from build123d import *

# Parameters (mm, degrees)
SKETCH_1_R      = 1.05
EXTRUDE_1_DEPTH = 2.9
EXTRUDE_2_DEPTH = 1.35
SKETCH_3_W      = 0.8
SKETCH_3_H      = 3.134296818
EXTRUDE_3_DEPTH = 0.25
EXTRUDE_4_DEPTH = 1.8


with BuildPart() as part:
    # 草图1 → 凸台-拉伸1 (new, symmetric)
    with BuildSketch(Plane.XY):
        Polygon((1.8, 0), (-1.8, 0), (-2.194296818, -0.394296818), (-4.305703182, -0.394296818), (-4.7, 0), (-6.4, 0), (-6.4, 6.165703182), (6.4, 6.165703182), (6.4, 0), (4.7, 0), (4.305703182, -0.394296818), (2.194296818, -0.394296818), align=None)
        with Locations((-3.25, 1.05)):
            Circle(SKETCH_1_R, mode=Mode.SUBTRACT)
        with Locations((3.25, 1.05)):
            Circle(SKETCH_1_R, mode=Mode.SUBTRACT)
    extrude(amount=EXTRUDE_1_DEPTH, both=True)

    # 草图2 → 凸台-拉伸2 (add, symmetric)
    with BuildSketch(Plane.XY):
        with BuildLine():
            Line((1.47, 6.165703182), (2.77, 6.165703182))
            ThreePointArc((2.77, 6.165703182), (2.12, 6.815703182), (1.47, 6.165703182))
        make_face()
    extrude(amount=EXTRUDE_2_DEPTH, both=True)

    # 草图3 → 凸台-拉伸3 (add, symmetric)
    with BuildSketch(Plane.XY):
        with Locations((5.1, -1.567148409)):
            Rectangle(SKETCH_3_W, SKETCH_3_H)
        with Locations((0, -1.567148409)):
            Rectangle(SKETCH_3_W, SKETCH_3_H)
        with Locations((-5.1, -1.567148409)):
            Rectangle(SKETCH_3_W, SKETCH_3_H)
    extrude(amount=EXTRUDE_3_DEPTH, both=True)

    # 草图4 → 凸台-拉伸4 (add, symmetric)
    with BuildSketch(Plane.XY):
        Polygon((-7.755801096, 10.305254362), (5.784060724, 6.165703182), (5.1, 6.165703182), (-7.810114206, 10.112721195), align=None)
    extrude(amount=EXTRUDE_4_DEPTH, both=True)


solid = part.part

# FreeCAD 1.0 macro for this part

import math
import FreeCAD as App
import Part
import Sketcher
from FreeCAD import Vector
Q = App.Units.Quantity


def add_polygon(sketch, points):
    """Adds a closed chain of lines whose ends are joined by coincident constraints."""
    first, n = sketch.GeometryCount, len(points)
    for a, b in zip(points, points[1:] + points[:1]):
        sketch.addGeometry(Part.LineSegment(App.Vector(*a, 0), App.Vector(*b, 0)), False)
    for i in range(n):
        sketch.addConstraint(Sketcher.Constraint("Coincident", first + i, 2, first + (i + 1) % n, 1))

doc = App.newDocument("Part")
body = doc.addObject("PartDesign::Body", "Body")

sketch1 = doc.addObject("Sketcher::SketchObject", "Sketch")
body.addObject(sketch1)
sketch1.AttachmentSupport = (doc.XY_Plane, [""])
sketch1.MapMode = "FlatFace"
add_polygon(sketch1, [(-1.8, 0), (1.8, 0), (2.2, -0.4), (4.3, -0.4), (4.7, 0), (6.4, 0), (6.4, 6.2), (-6.4, 6.2), (-6.4, 0), (-4.7, 0), (-4.3, -0.4), (-2.2, -0.4)])
sketch1.addGeometry(Part.Circle(Vector(3.2, 1.1, 0), Vector(0, 0, 1), 1.1), False)
sketch1.addGeometry(Part.Circle(Vector(-3.2, 1.1, 0), Vector(0, 0, 1), 1.1), False)
sketch1.addConstraint([
    Sketcher.Constraint("Horizontal", 0),
    Sketcher.Constraint("Horizontal", 2),
    Sketcher.Constraint("Horizontal", 4),
    Sketcher.Constraint("Vertical", 5),
    Sketcher.Constraint("Horizontal", 6),
    Sketcher.Constraint("Vertical", 7),
    Sketcher.Constraint("Horizontal", 8),
    Sketcher.Constraint("Horizontal", 10),
    Sketcher.Constraint("Equal", 12, 13),
    Sketcher.Constraint("Symmetric", 4, 2, 7, 2, -1, 1),
    Sketcher.Constraint("Symmetric", 0, 2, 11, 2, -1, 1),
    Sketcher.Constraint("Symmetric", 12, 3, 13, 3, -2),
    Sketcher.Constraint("Symmetric", 3, 2, 8, 2, -2),
    Sketcher.Constraint("Symmetric", 2, 2, 9, 2, -2),
    Sketcher.Constraint("Perpendicular", 1, 3),
    Sketcher.Constraint("Perpendicular", 3, 9),
    Sketcher.Constraint("Perpendicular", 9, 11),
    Sketcher.Constraint("Diameter", 12, Q("2.1 mm")),
    Sketcher.Constraint("DistanceX", 0, 1, 0, 2, Q("3.6 mm")),
    Sketcher.Constraint("DistanceX", 4, 1, 4, 2, Q("1.7 mm")),
    Sketcher.Constraint("DistanceX", 6, 2, 6, 1, Q("12.8 mm")),
    Sketcher.Constraint("DistanceX", 13, 3, 12, 3, Q("6.5 mm")),
    Sketcher.Constraint("DistanceY", -1, 1, 12, 3, Q("1.05 mm")),
    Sketcher.Constraint("DistanceY", 2, 2, 5, 2, Q("6.56 mm")),
    Sketcher.Constraint("Distance", 1, Q("0.55762 mm")),
])
pad1 = doc.addObject("PartDesign::Pad", "Pad")
body.addObject(pad1)
pad1.Profile = sketch1
pad1.Length = 5.8
pad1.Midplane = True

sketch2 = doc.addObject("Sketcher::SketchObject", "Sketch001")
body.addObject(sketch2)
sketch2.AttachmentSupport = (doc.XY_Plane, [""])
sketch2.MapMode = "FlatFace"
sketch2.addGeometry([
    Part.LineSegment(Vector(1.5, 6.2, 0), Vector(2.8, 6.2, 0)),
    Part.ArcOfCircle(Part.Circle(Vector(2.1, 6.2, 0), Vector(0, 0, 1), 0.7), math.radians(0), math.radians(180)),
], False)
sketch2.addConstraint([
    Sketcher.Constraint("Coincident", 0, 1, 1, 2),
    Sketcher.Constraint("Coincident", 1, 1, 0, 2),
    Sketcher.Constraint("Horizontal", 0),
    Sketcher.Constraint("Horizontal", 1, 3, 0, 1),
    Sketcher.Constraint("Radius", 1, Q("0.65 mm")),
    Sketcher.Constraint("DistanceX", -1, 1, 1, 3, Q("2.12 mm")),
    Sketcher.Constraint("DistanceY", -1, 1, 1, 3, Q("6.165703 mm")),
])
pad2 = doc.addObject("PartDesign::Pad", "Pad001")
body.addObject(pad2)
pad2.Profile = sketch2
pad2.Length = 2.7
pad2.Midplane = True

sketch3 = doc.addObject("Sketcher::SketchObject", "Sketch002")
body.addObject(sketch3)
sketch3.AttachmentSupport = (doc.XY_Plane, [""])
sketch3.MapMode = "FlatFace"
add_polygon(sketch3, [(4.7, 0), (4.7, -3.1), (5.5, -3.1), (5.5, 0)])
add_polygon(sketch3, [(-0.4, 0), (-0.4, -3.1), (0.4, -3.1), (0.4, 0)])
add_polygon(sketch3, [(-5.5, 0), (-5.5, -3.1), (-4.7, -3.1), (-4.7, 0)])
sketch3.addConstraint([
    Sketcher.Constraint("Vertical", 0),
    Sketcher.Constraint("Horizontal", 1),
    Sketcher.Constraint("Vertical", 2),
    Sketcher.Constraint("Horizontal", 3),
    Sketcher.Constraint("Vertical", 4),
    Sketcher.Constraint("Horizontal", 5),
    Sketcher.Constraint("Vertical", 6),
    Sketcher.Constraint("Horizontal", 7),
    Sketcher.Constraint("Vertical", 8),
    Sketcher.Constraint("Horizontal", 9),
    Sketcher.Constraint("Vertical", 10),
    Sketcher.Constraint("Horizontal", 11),
    Sketcher.Constraint("Symmetric", 6, 2, 7, 2, -1, 1),
    Sketcher.Constraint("Symmetric", 3, 2, 10, 2, -1, 1),
    Sketcher.Constraint("Symmetric", 1, 2, 8, 2, -2),
    Sketcher.Constraint("PointOnObject", 2, 2, -1),
    Sketcher.Constraint("Horizontal", 1, 2, 4, 2),
    Sketcher.Constraint("Equal", 3, 5),
    Sketcher.Constraint("DistanceX", 1, 1, 1, 2, Q("0.8 mm")),
    Sketcher.Constraint("DistanceX", -1, 1, 0, 2, Q("4.7 mm")),
    Sketcher.Constraint("DistanceY", 0, 2, 0, 1, Q("3.134297 mm")),
])
pad3 = doc.addObject("PartDesign::Pad", "Pad002")
body.addObject(pad3)
pad3.Profile = sketch3
pad3.Length = 0.5
pad3.Midplane = True

sketch4 = doc.addObject("Sketcher::SketchObject", "Sketch003")
body.addObject(sketch4)
sketch4.AttachmentSupport = (doc.XY_Plane, [""])
sketch4.MapMode = "FlatFace"
add_polygon(sketch4, [(5.78, 6.17), (-7.76, 10.31), (-7.81, 10.11), (5.1, 6.17)])
sketch4.addConstraint([
    Sketcher.Constraint("Horizontal", 3),
    Sketcher.Constraint("Parallel", 0, 2),
    Sketcher.Constraint("Angle", 0, Q("163 deg")),
    Sketcher.Constraint("Distance", 2, Q("13.5 mm")),
    Sketcher.Constraint("DistanceX", -1, 1, 2, 2, Q("5.1 mm")),
    Sketcher.Constraint("DistanceX", 3, 1, 3, 2, Q("0.684061 mm")),
    Sketcher.Constraint("DistanceX", 0, 2, -1, 1, Q("7.755801 mm")),
    Sketcher.Constraint("DistanceY", -1, 1, 1, 2, Q("10.112721 mm")),
])
pad4 = doc.addObject("PartDesign::Pad", "Pad003")
body.addObject(pad4)
pad4.Profile = sketch4
pad4.Length = 3.6
pad4.Midplane = True

doc.recompute()
